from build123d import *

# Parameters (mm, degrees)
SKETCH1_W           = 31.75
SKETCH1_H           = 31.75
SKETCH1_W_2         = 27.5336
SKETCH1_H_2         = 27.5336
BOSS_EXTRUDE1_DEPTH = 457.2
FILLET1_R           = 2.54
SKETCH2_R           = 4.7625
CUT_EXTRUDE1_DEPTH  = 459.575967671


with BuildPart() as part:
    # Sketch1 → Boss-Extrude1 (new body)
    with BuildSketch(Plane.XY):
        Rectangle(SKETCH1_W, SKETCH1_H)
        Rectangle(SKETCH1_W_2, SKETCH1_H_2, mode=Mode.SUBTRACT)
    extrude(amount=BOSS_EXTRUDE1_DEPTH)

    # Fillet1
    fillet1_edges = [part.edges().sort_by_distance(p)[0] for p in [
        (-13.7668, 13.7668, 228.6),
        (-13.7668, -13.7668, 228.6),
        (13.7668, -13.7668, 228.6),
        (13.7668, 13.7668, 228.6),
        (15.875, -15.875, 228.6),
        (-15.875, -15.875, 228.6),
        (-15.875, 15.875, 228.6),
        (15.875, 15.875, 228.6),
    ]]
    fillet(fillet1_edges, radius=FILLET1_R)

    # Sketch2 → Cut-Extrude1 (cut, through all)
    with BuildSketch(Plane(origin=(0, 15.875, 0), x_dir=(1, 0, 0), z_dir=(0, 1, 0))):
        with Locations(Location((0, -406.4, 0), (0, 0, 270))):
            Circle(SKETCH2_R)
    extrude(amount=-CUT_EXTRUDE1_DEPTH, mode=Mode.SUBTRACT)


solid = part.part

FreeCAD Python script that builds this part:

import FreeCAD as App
import Part
import Sketcher
from FreeCAD import Vector
Q = App.Units.Quantity


def edges_at(feature, points):
    """Names of the edges that pass closest to the given points."""
    edges = feature.Shape.Edges
    near = lambda p: min(range(len(edges)), key=lambda i: edges[i].distToShape(Part.Vertex(*p))[0])
    return sorted({f"Edge{near(p) + 1}" for p in points})


def add_polygon(sketch, points):
    """Adds a closed chain of lines whose ends are joined by coincident constraints."""
    first, n = sketch.GeometryCount, len(points)
    for a, b in zip(points, points[1:] + points[:1]):
        sketch.addGeometry(Part.LineSegment(App.Vector(*a, 0), App.Vector(*b, 0)), False)
    for i in range(n):
        sketch.addConstraint(Sketcher.Constraint("Coincident", first + i, 2, first + (i + 1) % n, 1))

doc = App.newDocument("Part")
body = doc.addObject("PartDesign::Body", "Body")

sketch1 = body.newObject("Sketcher::SketchObject", "Sketch")
sketch1.AttachmentSupport = (doc.getObject("XY_Plane"), [""])
sketch1.MapMode = "FlatFace"
add_polygon(sketch1, [(-15.875, 15.875), (-15.875, -15.875), (15.875, -15.875), (15.875, 15.875)])
add_polygon(sketch1, [(13.7668, -13.7668), (-13.7668, -13.7668), (-13.7668, 13.7668), (13.7668, 13.7668)])
sketch1.addConstraint([
    Sketcher.Constraint("Vertical", 0),
    Sketcher.Constraint("Horizontal", 1),
    Sketcher.Constraint("Vertical", 2),
    Sketcher.Constraint("Horizontal", 3),
    Sketcher.Constraint("Horizontal", 4),
    Sketcher.Constraint("Vertical", 5),
    Sketcher.Constraint("Horizontal", 6),
    Sketcher.Constraint("Vertical", 7),
    Sketcher.Constraint("Symmetric", 0, 2, 2, 2, -1, 1),
    Sketcher.Constraint("Symmetric", 4, 2, 6, 2, -1, 1),
    Sketcher.Constraint("Equal", 3, 0),
    Sketcher.Constraint("Equal", 6, 5),
    Sketcher.Constraint("DistanceX", 1, 1, 1, 2, Q("1.25 in")),
    Sketcher.Constraint("DistanceX", 4, 2, 4, 1, Q("1.084 in")),
])
pad1 = body.newObject("PartDesign::Pad", "Pad")
pad1.Profile = sketch1
pad1.Length = Q("18 in")
doc.recompute()

fillet = body.newObject("PartDesign::Fillet", "Fillet")
fillet.Base = (pad1, edges_at(pad1, [
    (-13.767, 13.767, 228.6),
    (-13.767, -13.767, 228.6),
    (13.767, -13.767, 228.6),
    (13.767, 13.767, 228.6),
    (15.875, -15.875, 228.6),
    (-15.875, -15.875, 228.6),
    (-15.875, 15.875, 228.6),
    (15.875, 15.875, 228.6),
]))
fillet.Radius = Q("0.1 in")

sketch2 = body.newObject("Sketcher::SketchObject", "Sketch001")
sketch2.AttachmentSupport = (doc.getObject("XZ_Plane"), [""])
sketch2.MapMode = "FlatFace"
sketch2.AttachmentOffset = App.Placement(Vector(0, 0, -0.625 * 25.4), App.Rotation())
sketch2.addGeometry(Part.Circle(Vector(0, 406.4, 0), Vector(0, 0, 1), 4.7625), False)
sketch2.addConstraint([
    Sketcher.Constraint("PointOnObject", 0, 3, -2),
    Sketcher.Constraint("Diameter", 0, Q("0.375 in")),
    Sketcher.Constraint("DistanceY", -1, 1, 0, 3, Q("16 in")),
])
pocket1 = body.newObject("PartDesign::Pocket", "Pocket")
pocket1.Profile = sketch2
pocket1.Type = "ThroughAll"
pocket1.Reversed = True

doc.recompute()
